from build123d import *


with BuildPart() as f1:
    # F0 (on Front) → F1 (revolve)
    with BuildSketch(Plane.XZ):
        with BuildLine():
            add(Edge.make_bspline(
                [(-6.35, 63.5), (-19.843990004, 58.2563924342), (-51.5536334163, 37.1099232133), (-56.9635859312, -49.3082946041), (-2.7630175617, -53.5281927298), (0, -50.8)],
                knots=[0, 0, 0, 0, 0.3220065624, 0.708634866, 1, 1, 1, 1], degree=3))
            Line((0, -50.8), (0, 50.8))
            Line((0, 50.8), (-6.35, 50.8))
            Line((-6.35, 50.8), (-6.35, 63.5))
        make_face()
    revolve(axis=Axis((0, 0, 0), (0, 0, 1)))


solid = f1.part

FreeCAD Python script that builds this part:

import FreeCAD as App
import Part
import Sketcher

V = App.Vector
Q = App.Units.Quantity

doc = App.newDocument("Part")
body = doc.addObject("PartDesign::Body", "Body")

# Sketch on XZ plane
sketch1 = body.newObject("Sketcher::SketchObject", "Sketch")
sketch1.AttachmentSupport = (doc.getObject("XZ_Plane"), [""])
sketch1.MapMode = "FlatFace"
sketch1.addGeometry([
    Part.BSplineCurve([V(-6.35, 63.5, 0), V(-19.84399, 58.256392, 0), V(-51.553633, 37.109923, 0), V(-56.963586, -49.308295, 0), V(-2.763018, -53.528193, 0), V(0, -50.8, 0)], [4, 1, 1, 4], [0, 0.322006562, 0.708634866, 1], False, 3, [1, 1, 1, 1, 1, 1], False),
    Part.LineSegment(V(0, -50.8, 0), V(0, 50.8, 0)),
    Part.LineSegment(V(0, 50.8, 0), V(-6.35, 50.8, 0)),
    Part.LineSegment(V(-6.35, 50.8, 0), V(-6.35, 63.5, 0)),
], False)
sketch1.addConstraint([
    Sketcher.Constraint("Block", 0),
    Sketcher.Constraint("Coincident", 0, 2, 1, 1),
    Sketcher.Constraint("Coincident", 1, 2, 2, 1),
    Sketcher.Constraint("Coincident", 2, 2, 3, 1),
    Sketcher.Constraint("Coincident", 3, 2, 0, 1),
    Sketcher.Constraint("Vertical", 1),
    Sketcher.Constraint("Horizontal", 2),
    Sketcher.Constraint("Vertical", 3),
    Sketcher.Constraint("DistanceY", 1, 1, 1, 2, Q("4 in")),
])
revolution = body.newObject("PartDesign::Revolution", "Revolution")
revolution.Profile = sketch1
revolution.ReferenceAxis = (sketch1, ["V_Axis"])
revolution.Angle = 360

doc.recompute()
